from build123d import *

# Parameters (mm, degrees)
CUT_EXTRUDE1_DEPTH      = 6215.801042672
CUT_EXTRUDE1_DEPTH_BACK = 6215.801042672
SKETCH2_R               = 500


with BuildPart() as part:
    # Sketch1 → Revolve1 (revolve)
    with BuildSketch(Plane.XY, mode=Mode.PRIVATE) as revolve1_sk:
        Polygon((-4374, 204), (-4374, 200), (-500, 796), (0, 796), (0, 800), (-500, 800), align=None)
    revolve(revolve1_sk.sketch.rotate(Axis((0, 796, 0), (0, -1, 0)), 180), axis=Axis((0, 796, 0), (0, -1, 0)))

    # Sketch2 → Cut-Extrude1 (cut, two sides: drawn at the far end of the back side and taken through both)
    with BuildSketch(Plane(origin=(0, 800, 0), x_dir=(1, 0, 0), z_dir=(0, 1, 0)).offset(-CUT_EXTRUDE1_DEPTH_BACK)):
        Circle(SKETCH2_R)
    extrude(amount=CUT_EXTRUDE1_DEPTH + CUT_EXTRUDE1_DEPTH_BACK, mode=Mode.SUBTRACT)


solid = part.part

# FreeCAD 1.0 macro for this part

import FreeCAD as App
import Part
import Sketcher

V = App.Vector


def add_polygon(sketch, points):
    """Adds a closed chain of lines whose ends are joined by coincident constraints."""
    first, n = sketch.GeometryCount, len(points)
    for a, b in zip(points, points[1:] + points[:1]):
        sketch.addGeometry(Part.LineSegment(App.Vector(*a, 0), App.Vector(*b, 0)), False)
    for i in range(n):
        sketch.addConstraint(Sketcher.Constraint("Coincident", first + i, 2, first + (i + 1) % n, 1))

doc = App.newDocument("Part")
body = doc.addObject("PartDesign::Body", "Body")

# Sketch on XY plane
sketch1 = doc.addObject("Sketcher::SketchObject", "Sketch")
body.addObject(sketch1)
sketch1.AttachmentSupport = (doc.XY_Plane, [""])
sketch1.MapMode = "FlatFace"
add_polygon(sketch1, [(-4374, 204), (-4374, 200), (-500, 796), (0, 796), (0, 800), (-500, 800)])  # lines 0-5
sketch1.addConstraint(Sketcher.Constraint("Vertical", 0))
sketch1.addConstraint(Sketcher.Constraint("Horizontal", 2))
sketch1.addConstraint(Sketcher.Constraint("Vertical", 3))
sketch1.addConstraint(Sketcher.Constraint("Horizontal", 4))
sketch1.addConstraint(Sketcher.Constraint("PointOnObject", 2, 2, -2))
sketch1.addConstraint(Sketcher.Constraint("Parallel", 1, 5))
sketch1.addConstraint(Sketcher.Constraint("Vertical", 1, 2, 4, 2))
sketch1.addConstraint(Sketcher.Constraint("DistanceX", 2, 1, 2, 2, 500.0))
sketch1.addConstraint(Sketcher.Constraint("DistanceY", 0, 2, 0, 1, 4.0))
sketch1.addConstraint(Sketcher.Constraint("DistanceX", 0, 2, -1, 1, 4374.0))
sketch1.addConstraint(Sketcher.Constraint("DistanceY", -1, 1, 0, 2, 200.0))
sketch1.addConstraint(Sketcher.Constraint("DistanceY", -1, 1, 1, 2, 796.0))
revolution = doc.addObject("PartDesign::Revolution", "Revolution")
body.addObject(revolution)
revolution.Profile = sketch1
revolution.ReferenceAxis = (sketch1, ["V_Axis"])
revolution.Angle = 360

# Sketch on XZ plane
sketch2 = doc.addObject("Sketcher::SketchObject", "Sketch001")
body.addObject(sketch2)
sketch2.AttachmentSupport = (doc.XZ_Plane, [""])
sketch2.MapMode = "FlatFace"
sketch2.AttachmentOffset = App.Placement(V(0, 0, -800), App.Rotation())
sketch2.addGeometry(Part.Circle(V(0, 0, 0), V(0, 0, 1), 500), False)
sketch2.addConstraint(Sketcher.Constraint("Coincident", 0, 3, -1, 1))
sketch2.addConstraint(Sketcher.Constraint("Diameter", 0, 1000.0))
pocket1 = doc.addObject("PartDesign::Pocket", "Pocket")
body.addObject(pocket1)
pocket1.Profile = sketch2
pocket1.Type = "ThroughAll"
pocket1.Midplane = True

doc.recompute()
